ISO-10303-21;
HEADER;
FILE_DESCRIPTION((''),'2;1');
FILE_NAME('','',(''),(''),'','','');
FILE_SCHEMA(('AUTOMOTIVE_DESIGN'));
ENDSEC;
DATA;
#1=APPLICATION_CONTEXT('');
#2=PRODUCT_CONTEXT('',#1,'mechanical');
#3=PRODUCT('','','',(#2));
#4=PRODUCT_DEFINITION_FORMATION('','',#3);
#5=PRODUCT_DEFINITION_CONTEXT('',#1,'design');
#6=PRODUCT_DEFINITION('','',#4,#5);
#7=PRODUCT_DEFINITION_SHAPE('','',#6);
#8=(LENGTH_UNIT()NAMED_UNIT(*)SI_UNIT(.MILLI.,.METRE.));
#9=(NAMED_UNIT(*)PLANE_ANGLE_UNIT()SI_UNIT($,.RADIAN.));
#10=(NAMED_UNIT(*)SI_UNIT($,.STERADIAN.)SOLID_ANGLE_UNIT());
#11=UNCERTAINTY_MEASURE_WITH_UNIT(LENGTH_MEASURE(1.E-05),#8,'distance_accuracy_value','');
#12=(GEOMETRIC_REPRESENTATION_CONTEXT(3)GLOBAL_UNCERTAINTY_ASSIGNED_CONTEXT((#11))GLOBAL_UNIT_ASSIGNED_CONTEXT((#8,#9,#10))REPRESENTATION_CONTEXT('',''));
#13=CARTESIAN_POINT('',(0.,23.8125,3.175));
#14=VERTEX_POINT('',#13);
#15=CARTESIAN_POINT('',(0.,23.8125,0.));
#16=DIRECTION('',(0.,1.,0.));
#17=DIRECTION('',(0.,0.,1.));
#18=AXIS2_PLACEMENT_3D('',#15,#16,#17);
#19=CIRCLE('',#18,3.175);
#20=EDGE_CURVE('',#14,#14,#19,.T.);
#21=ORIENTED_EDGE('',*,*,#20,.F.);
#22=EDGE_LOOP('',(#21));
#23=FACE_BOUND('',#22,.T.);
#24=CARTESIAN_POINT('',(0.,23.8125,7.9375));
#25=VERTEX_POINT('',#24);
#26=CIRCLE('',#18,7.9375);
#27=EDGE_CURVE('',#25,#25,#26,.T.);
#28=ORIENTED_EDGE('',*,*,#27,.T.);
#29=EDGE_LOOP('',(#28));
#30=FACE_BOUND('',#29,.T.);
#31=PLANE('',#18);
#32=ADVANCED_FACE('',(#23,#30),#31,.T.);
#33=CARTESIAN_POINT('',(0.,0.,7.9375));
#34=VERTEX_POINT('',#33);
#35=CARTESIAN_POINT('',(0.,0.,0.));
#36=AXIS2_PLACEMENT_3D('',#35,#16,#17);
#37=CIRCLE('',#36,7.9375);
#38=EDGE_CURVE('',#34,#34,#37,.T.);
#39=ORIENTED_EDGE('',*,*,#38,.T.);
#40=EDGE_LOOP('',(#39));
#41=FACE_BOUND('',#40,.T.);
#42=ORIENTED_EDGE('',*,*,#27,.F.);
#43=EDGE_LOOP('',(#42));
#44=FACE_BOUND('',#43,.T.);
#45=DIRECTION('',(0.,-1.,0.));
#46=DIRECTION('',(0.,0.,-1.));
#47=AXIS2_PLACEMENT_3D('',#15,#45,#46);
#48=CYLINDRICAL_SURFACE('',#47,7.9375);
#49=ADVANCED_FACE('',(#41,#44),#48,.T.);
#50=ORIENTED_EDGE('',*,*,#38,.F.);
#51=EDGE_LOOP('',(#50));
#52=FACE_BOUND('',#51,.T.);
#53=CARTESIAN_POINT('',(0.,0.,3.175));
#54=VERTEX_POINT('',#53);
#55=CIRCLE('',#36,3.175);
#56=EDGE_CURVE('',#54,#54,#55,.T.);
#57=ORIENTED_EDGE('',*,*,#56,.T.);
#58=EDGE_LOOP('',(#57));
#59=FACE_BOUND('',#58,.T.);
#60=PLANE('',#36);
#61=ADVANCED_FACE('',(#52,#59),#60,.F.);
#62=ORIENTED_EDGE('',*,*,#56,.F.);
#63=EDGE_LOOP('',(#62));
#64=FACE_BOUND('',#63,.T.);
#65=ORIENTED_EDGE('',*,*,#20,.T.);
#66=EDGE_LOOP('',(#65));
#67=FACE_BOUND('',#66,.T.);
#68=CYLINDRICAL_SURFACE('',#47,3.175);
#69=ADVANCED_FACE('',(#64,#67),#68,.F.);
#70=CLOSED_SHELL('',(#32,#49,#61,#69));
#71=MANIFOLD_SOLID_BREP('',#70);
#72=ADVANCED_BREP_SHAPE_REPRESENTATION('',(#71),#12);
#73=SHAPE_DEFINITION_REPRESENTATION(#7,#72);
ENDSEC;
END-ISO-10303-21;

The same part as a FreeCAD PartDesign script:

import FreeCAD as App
import Part
import Sketcher
from FreeCAD import Vector
Q = App.Units.Quantity

doc = App.newDocument("Part")
body = doc.addObject("PartDesign::Body", "Body")

# Sketch on XZ plane
sketch1 = body.newObject("Sketcher::SketchObject", "Sketch")
sketch1.AttachmentSupport = (doc.getObject("XZ_Plane"), [""])
sketch1.MapMode = "FlatFace"
sketch1.addGeometry([
    Part.Circle(Vector(0, 0, 0), Vector(0, 0, 1), 7.9375),
    Part.Circle(Vector(0, 0, 0), Vector(0, 0, 1), 3.175),
], False)
sketch1.addConstraint([
    Sketcher.Constraint("Coincident", 0, 3, -1, 1),
    Sketcher.Constraint("Coincident", 1, 3, -1, 1),
    Sketcher.Constraint("Diameter", 1, Q("0.25 in")),
    Sketcher.Constraint("Diameter", 0, Q("0.625 in")),
])
pad1 = body.newObject("PartDesign::Pad", "Pad")
pad1.Profile = sketch1
pad1.Length = Q("0.9375 in")
pad1.Reversed = True

doc.recompute()
